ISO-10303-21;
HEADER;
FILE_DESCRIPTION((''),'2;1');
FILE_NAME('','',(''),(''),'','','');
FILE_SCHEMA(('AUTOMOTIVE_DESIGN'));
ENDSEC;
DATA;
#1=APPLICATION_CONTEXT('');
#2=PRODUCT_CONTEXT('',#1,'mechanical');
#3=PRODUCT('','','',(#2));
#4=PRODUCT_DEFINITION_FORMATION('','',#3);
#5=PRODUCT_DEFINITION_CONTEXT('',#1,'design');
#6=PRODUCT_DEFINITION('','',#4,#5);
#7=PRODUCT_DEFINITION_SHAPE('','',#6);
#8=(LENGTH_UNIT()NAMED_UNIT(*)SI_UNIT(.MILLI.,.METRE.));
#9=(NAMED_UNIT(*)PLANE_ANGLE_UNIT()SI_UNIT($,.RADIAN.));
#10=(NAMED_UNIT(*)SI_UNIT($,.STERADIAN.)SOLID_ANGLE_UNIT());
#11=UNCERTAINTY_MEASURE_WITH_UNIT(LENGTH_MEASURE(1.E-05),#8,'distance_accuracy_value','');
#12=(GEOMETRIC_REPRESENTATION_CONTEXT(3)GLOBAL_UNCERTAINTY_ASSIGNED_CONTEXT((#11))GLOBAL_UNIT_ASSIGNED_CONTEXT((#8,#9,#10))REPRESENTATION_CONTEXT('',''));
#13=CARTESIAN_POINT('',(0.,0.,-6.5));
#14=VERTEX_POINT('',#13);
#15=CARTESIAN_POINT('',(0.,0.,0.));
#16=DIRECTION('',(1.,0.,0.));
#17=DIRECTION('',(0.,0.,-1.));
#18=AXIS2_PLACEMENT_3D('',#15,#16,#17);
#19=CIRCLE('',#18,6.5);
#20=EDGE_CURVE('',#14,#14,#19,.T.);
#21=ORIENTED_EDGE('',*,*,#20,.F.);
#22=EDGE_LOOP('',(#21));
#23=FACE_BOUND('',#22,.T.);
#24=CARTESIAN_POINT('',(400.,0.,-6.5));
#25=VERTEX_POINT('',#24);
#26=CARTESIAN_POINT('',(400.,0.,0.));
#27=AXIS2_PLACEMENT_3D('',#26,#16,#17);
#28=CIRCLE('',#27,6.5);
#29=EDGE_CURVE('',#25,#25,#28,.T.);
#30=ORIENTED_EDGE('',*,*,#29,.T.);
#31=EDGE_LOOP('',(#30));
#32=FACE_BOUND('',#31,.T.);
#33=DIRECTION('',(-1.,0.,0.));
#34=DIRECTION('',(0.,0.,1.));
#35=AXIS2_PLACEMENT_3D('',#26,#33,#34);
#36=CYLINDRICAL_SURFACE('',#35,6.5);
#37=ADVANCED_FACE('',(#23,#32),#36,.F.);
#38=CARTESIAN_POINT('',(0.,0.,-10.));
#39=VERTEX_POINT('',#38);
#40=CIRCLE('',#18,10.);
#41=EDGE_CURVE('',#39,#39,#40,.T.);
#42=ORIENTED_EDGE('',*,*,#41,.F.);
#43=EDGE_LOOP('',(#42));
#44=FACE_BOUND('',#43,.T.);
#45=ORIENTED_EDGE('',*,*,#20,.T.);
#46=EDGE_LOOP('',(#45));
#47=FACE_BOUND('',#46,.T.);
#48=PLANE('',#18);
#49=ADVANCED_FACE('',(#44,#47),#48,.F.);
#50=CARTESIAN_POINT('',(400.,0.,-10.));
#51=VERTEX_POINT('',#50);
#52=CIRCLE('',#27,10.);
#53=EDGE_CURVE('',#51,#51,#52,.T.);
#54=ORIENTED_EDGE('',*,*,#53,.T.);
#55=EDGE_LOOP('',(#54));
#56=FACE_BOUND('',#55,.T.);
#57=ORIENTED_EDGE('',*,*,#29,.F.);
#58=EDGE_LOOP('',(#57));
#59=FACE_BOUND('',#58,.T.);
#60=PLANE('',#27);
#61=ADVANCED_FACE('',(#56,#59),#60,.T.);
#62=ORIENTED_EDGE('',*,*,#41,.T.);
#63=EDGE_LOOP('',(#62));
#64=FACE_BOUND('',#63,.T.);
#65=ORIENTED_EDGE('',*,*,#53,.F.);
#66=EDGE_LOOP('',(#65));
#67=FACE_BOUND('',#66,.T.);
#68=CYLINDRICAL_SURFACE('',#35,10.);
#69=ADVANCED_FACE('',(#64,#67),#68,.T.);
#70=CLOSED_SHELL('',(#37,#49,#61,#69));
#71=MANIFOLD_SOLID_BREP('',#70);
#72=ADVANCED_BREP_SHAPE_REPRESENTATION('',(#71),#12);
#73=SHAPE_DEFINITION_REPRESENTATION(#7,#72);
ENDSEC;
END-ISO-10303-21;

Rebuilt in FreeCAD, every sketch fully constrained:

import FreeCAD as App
import Part
import Sketcher
from FreeCAD import Vector

doc = App.newDocument("Part")
body = doc.addObject("PartDesign::Body", "Body")

# Sketch on YZ plane
sketch1 = body.newObject("Sketcher::SketchObject", "Sketch")
sketch1.AttachmentSupport = (doc.getObject("YZ_Plane"), [""])
sketch1.MapMode = "FlatFace"
sketch1.addGeometry(Part.Circle(Vector(0, 0, 0), Vector(0, 0, 1), 10), False)
sketch1.addGeometry(Part.Circle(Vector(0, 0, 0), Vector(0, 0, 1), 6), False)
sketch1.addConstraint(Sketcher.Constraint("Coincident", 0, 3, -1, 1))
sketch1.addConstraint(Sketcher.Constraint("Coincident", 1, 3, -1, 1))
sketch1.addConstraint(Sketcher.Constraint("Diameter", 0, 20.0))
sketch1.addConstraint(Sketcher.Constraint("Diameter", 1, 13.0))
pad1 = body.newObject("PartDesign::Pad", "Pad")
pad1.Profile = sketch1
pad1.Length = 400

doc.recompute()
